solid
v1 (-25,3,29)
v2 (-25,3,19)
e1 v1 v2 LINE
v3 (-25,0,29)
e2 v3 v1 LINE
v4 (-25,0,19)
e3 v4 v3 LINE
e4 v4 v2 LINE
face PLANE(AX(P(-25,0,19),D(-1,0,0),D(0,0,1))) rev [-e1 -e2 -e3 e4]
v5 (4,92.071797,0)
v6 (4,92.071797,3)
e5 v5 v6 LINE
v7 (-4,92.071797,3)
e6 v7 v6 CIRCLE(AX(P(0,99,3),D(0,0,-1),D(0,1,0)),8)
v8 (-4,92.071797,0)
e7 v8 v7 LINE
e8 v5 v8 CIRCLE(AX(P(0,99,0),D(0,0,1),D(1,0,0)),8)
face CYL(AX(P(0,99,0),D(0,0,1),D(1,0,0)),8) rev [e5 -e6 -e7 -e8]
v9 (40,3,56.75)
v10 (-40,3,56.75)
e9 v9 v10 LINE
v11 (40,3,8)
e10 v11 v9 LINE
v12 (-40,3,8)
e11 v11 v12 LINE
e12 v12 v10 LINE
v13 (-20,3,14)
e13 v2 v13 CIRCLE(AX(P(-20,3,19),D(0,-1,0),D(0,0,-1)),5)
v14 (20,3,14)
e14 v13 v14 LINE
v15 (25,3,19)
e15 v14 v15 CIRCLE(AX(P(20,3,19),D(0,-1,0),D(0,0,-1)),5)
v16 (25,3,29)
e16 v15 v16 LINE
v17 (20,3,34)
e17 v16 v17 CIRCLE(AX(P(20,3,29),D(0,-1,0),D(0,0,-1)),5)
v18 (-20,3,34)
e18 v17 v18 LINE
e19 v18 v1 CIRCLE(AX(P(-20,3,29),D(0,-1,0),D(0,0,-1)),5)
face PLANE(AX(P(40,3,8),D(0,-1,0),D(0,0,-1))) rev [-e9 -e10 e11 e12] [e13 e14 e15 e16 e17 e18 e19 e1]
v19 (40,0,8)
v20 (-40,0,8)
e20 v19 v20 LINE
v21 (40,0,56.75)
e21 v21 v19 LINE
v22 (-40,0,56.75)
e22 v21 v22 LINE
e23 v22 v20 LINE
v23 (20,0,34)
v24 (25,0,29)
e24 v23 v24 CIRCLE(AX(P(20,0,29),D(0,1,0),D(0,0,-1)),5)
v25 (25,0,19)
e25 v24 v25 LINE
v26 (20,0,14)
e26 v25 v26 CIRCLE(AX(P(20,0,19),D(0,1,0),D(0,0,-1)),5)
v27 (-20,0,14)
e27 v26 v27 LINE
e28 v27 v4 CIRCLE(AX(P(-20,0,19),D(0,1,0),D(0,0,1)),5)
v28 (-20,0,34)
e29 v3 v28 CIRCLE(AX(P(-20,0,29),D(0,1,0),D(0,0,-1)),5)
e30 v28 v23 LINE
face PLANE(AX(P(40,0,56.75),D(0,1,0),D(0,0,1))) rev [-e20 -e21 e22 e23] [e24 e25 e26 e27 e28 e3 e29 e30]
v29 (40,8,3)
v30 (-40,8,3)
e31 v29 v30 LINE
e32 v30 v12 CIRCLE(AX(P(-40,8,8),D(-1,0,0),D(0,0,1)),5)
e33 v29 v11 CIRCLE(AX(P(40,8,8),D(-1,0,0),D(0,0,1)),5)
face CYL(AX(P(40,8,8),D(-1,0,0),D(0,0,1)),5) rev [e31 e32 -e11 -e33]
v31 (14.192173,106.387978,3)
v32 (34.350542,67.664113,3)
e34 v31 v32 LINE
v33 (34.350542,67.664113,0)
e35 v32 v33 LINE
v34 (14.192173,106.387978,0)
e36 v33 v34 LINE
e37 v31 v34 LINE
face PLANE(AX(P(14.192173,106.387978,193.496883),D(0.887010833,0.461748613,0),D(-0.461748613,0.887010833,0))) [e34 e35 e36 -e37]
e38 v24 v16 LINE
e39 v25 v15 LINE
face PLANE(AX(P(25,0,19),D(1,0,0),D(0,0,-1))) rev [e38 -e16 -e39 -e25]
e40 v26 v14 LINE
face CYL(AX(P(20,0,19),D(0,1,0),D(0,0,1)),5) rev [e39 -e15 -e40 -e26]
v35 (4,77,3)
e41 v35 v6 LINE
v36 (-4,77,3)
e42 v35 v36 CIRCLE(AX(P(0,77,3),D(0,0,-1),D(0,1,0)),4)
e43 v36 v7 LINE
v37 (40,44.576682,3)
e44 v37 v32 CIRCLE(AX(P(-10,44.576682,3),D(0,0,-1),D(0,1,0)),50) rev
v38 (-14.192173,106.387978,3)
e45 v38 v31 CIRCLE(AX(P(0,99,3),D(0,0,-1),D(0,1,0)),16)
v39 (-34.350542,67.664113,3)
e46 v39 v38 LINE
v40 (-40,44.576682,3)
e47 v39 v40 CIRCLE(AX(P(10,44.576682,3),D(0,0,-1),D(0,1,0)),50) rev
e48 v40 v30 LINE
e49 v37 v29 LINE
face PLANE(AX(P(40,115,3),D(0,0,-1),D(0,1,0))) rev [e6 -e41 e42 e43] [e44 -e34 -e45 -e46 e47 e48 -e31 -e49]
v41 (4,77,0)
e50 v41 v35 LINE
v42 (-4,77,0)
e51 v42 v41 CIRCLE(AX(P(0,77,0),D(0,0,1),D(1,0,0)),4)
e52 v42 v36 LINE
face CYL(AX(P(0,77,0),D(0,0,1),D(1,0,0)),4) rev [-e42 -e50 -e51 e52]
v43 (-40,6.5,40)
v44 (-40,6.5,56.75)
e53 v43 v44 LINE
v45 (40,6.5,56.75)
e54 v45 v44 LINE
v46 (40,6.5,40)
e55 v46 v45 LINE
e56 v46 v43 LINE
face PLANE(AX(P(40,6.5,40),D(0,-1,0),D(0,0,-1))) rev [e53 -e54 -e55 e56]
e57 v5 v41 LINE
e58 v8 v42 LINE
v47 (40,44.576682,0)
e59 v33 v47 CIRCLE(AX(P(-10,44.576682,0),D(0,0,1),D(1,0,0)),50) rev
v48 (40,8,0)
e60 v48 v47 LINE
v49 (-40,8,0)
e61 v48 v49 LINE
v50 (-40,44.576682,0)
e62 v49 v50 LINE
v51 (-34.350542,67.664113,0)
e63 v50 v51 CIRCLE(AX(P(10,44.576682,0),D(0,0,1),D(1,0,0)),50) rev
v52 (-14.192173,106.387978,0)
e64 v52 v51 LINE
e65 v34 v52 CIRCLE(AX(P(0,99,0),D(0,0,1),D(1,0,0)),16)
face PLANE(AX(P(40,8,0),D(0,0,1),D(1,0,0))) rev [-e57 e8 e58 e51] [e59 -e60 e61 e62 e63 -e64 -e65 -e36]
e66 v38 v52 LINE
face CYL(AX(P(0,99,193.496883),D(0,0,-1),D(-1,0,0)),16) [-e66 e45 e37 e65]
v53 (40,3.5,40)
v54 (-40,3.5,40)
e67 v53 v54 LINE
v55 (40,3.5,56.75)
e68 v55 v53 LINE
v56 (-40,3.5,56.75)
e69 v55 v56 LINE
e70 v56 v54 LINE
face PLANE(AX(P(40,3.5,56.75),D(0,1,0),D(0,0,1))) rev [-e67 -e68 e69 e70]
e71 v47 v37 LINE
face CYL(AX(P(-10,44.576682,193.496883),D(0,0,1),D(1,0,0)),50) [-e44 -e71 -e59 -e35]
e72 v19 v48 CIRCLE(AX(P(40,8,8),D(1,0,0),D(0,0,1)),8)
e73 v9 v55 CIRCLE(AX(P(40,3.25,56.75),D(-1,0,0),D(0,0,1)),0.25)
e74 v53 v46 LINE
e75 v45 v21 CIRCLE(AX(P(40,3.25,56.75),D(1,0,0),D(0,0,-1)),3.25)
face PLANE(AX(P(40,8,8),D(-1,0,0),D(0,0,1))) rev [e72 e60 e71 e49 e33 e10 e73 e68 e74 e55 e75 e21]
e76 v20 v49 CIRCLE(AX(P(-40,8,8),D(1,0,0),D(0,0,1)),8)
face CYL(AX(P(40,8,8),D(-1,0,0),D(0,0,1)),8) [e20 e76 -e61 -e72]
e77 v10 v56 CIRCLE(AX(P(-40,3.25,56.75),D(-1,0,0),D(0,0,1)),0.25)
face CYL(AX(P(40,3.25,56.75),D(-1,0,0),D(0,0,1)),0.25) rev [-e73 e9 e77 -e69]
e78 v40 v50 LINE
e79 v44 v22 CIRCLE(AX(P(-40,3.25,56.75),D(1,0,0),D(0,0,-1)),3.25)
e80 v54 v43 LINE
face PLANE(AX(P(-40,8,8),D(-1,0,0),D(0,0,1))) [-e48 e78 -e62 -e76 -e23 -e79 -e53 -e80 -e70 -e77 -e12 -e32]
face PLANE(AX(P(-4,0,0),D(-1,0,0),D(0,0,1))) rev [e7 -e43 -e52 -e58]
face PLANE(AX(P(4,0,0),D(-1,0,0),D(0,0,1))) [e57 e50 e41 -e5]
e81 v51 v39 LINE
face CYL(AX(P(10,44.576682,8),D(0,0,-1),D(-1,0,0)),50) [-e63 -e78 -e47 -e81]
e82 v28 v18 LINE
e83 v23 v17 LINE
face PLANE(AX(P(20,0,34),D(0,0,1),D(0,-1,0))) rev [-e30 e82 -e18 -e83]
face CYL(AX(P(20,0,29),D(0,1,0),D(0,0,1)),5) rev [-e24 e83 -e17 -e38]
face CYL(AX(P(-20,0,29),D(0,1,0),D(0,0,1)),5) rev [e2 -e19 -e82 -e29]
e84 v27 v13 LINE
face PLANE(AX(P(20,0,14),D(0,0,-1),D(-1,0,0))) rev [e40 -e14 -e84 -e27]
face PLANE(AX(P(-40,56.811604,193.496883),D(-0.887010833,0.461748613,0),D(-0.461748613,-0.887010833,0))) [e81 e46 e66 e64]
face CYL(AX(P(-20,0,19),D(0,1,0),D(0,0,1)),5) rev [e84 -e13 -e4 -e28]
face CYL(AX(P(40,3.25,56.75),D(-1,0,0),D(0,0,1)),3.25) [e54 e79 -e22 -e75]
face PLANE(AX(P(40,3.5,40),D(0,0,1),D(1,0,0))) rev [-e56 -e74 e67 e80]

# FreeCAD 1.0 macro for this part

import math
import FreeCAD as App
import Part
import Sketcher
Q = App.Units.Quantity


def edges_at(feature, points):
    """Names of the edges that pass closest to the given points."""
    edges = feature.Shape.Edges
    near = lambda p: min(range(len(edges)), key=lambda i: edges[i].distToShape(Part.Vertex(*p))[0])
    return sorted({f"Edge{near(p) + 1}" for p in points})

doc = App.newDocument("Part")
params = doc.addObject("Spreadsheet::Sheet", "Params")
for row, (alias, value) in enumerate([
    ("sketch1_radius", "5 mm"),
    ("sketch1_radius2", "8 mm"),
    ("sketch1_width", "107 mm"),
    ("sketch1_radius3", "0.25 mm"),
    ("sketch1_height", "48.75 mm"),
    ("pad1_length", "80 mm"),
    ("sketch2_radius", "16 mm"),
    ("fillet_radius", "50 mm"),
    ("sketch3_radius", "8 mm"),
    ("sketch3_radius2", "4 mm"),
    ("sketch4_radius", "5 mm"),
    ("sketch4_width", "40 mm"),
    ("sketch4_height", "10 mm"),
], start=1):
    params.set(f"A{row}", alias)
    params.set(f"B{row}", "=" + value)
    params.setAlias(f"B{row}", alias)

body = doc.addObject("PartDesign::Body", "Body")

# Sketch on YZ plane
sketch1 = doc.addObject("Sketcher::SketchObject", "Sketch")
body.addObject(sketch1)
sketch1.AttachmentSupport = (doc.YZ_Plane, [""])
sketch1.MapMode = "FlatFace"
sketch1.addGeometry(Part.LineSegment(App.Vector(8, 0, 0), App.Vector(115, 0, 0)), False)
sketch1.addGeometry(Part.LineSegment(App.Vector(115, 0, 0), App.Vector(115, 3, 0)), False)
sketch1.addGeometry(Part.LineSegment(App.Vector(115, 3, 0), App.Vector(8, 3, 0)), False)
sketch1.addGeometry(Part.ArcOfCircle(Part.Circle(App.Vector(8, 8, 0), App.Vector(0, 0, 1), 5), math.radians(180), math.radians(270)), False)
sketch1.addGeometry(Part.LineSegment(App.Vector(3, 8, 0), App.Vector(3, 56.75, 0)), False)
sketch1.addGeometry(Part.ArcOfCircle(Part.Circle(App.Vector(3.25, 56.75, 0), App.Vector(0, 0, 1), 0.25), math.radians(0), math.radians(180)), False)
sketch1.addGeometry(Part.LineSegment(App.Vector(3.5, 56.75, 0), App.Vector(3.5, 40, 0)), False)
sketch1.addGeometry(Part.LineSegment(App.Vector(3.5, 40, 0), App.Vector(6.5, 40, 0)), False)
sketch1.addGeometry(Part.LineSegment(App.Vector(6.5, 40, 0), App.Vector(6.5, 56.75, 0)), False)
sketch1.addGeometry(Part.ArcOfCircle(Part.Circle(App.Vector(3.25, 56.75, 0), App.Vector(0, 0, 1), 3.25), math.radians(0), math.radians(180)), False)
sketch1.addGeometry(Part.LineSegment(App.Vector(0, 56.75, 0), App.Vector(0, 8, 0)), False)
sketch1.addGeometry(Part.ArcOfCircle(Part.Circle(App.Vector(8, 8, 0), App.Vector(0, 0, 1), 8), math.radians(-180), math.radians(-90)), False)
sketch1.addConstraint(Sketcher.Constraint("Coincident", 0, 2, 1, 1))
sketch1.addConstraint(Sketcher.Constraint("Coincident", 1, 2, 2, 1))
sketch1.addConstraint(Sketcher.Constraint("Tangent", 2, 2, 3, 2))
sketch1.addConstraint(Sketcher.Constraint("Tangent", 3, 1, 4, 1))
sketch1.addConstraint(Sketcher.Constraint("Tangent", 4, 2, 5, 2))
sketch1.addConstraint(Sketcher.Constraint("Tangent", 5, 1, 6, 1))
sketch1.addConstraint(Sketcher.Constraint("Coincident", 6, 2, 7, 1))
sketch1.addConstraint(Sketcher.Constraint("Coincident", 7, 2, 8, 1))
sketch1.addConstraint(Sketcher.Constraint("Tangent", 8, 2, 9, 1))
sketch1.addConstraint(Sketcher.Constraint("Tangent", 9, 2, 10, 1))
sketch1.addConstraint(Sketcher.Constraint("Tangent", 10, 2, 11, 1))
sketch1.addConstraint(Sketcher.Constraint("Tangent", 11, 2, 0, 1))
sketch1.addConstraint(Sketcher.Constraint("Horizontal", 0))
sketch1.addConstraint(Sketcher.Constraint("Vertical", 1))
sketch1.addConstraint(Sketcher.Constraint("Horizontal", 2))
sketch1.addConstraint(Sketcher.Constraint("Vertical", 4))
sketch1.addConstraint(Sketcher.Constraint("Vertical", 6))
sketch1.addConstraint(Sketcher.Constraint("Horizontal", 7))
sketch1.addConstraint(Sketcher.Constraint("Vertical", 8))
sketch1.addConstraint(Sketcher.Constraint("Vertical", 10))
sketch1.addConstraint(Sketcher.Constraint("Coincident", 9, 3, 5, 3))
sketch1.addConstraint(Sketcher.Constraint("Coincident", 11, 3, 3, 3))
sketch1.addConstraint(Sketcher.Constraint("PointOnObject", 0, 2, -1))
sketch1.addConstraint(Sketcher.Constraint("PointOnObject", 9, 2, -2))
sketch1.addConstraint(Sketcher.Constraint("Radius", 3, Q("5 mm")))
sketch1.addConstraint(Sketcher.Constraint("Radius", 11, Q("8 mm")))
sketch1.addConstraint(Sketcher.Constraint("DistanceX", 0, 1, 0, 2, Q("107 mm")))
sketch1.addConstraint(Sketcher.Constraint("Radius", 5, Q("0.25 mm")))
sketch1.addConstraint(Sketcher.Constraint("DistanceY", -1, 1, 6, 2, Q("40 mm")))
sketch1.addConstraint(Sketcher.Constraint("DistanceY", 4, 1, 4, 2, Q("48.75 mm")))
sketch1.setExpression("Constraints[24]", "Params.sketch1_radius")
sketch1.setExpression("Constraints[25]", "Params.sketch1_radius2")
sketch1.setExpression("Constraints[26]", "Params.sketch1_width")
sketch1.setExpression("Constraints[27]", "Params.sketch1_radius3")
sketch1.setExpression("Constraints[29]", "Params.sketch1_height")
pad1 = doc.addObject("PartDesign::Pad", "Pad")
body.addObject(pad1)
pad1.Profile = sketch1
pad1.setExpression("Length", "Params.pad1_length")
pad1.Midplane = True

# Sketch on XY plane
sketch2 = doc.addObject("Sketcher::SketchObject", "Sketch001")
body.addObject(sketch2)
sketch2.AttachmentSupport = (doc.XY_Plane, [""])
sketch2.MapMode = "FlatFace"
sketch2.AttachmentOffset = App.Placement(App.Vector(0, 0, 3), App.Rotation())
sketch2.addGeometry(Part.LineSegment(App.Vector(-135.973207, -127.551211, 0), App.Vector(-40, 56.811604, 0)), False)
sketch2.addGeometry(Part.LineSegment(App.Vector(-40, 56.811604, 0), App.Vector(-14.192173, 106.387978, 0)), False)
sketch2.addGeometry(Part.ArcOfCircle(Part.Circle(App.Vector(0, 99, 0), App.Vector(0, 0, 1), 16), math.radians(27.5), math.radians(152.5)), False)
sketch2.addGeometry(Part.LineSegment(App.Vector(14.192173, 106.387978, 0), App.Vector(40, 56.811604, 0)), False)
sketch2.addGeometry(Part.LineSegment(App.Vector(40, 56.811604, 0), App.Vector(135.973207, -127.551211, 0)), False)
sketch2.addGeometry(Part.LineSegment(App.Vector(135.973207, -127.551211, 0), App.Vector(135.973207, 288.143407, 0)), False)
sketch2.addGeometry(Part.LineSegment(App.Vector(135.973207, 288.143407, 0), App.Vector(-135.973207, 288.143407, 0)), False)
sketch2.addGeometry(Part.LineSegment(App.Vector(-135.973207, 288.143407, 0), App.Vector(-135.973207, -127.551211, 0)), False)
sketch2.addConstraint(Sketcher.Constraint("Coincident", 0, 2, 1, 1))
sketch2.addConstraint(Sketcher.Constraint("Tangent", 1, 2, 2, 2))
sketch2.addConstraint(Sketcher.Constraint("Tangent", 2, 1, 3, 1))
sketch2.addConstraint(Sketcher.Constraint("Coincident", 3, 2, 4, 1))
sketch2.addConstraint(Sketcher.Constraint("Coincident", 4, 2, 5, 1))
sketch2.addConstraint(Sketcher.Constraint("Coincident", 5, 2, 6, 1))
sketch2.addConstraint(Sketcher.Constraint("Coincident", 6, 2, 7, 1))
sketch2.addConstraint(Sketcher.Constraint("Coincident", 7, 2, 0, 1))
sketch2.addConstraint(Sketcher.Constraint("Vertical", 5))
sketch2.addConstraint(Sketcher.Constraint("Horizontal", 6))
sketch2.addConstraint(Sketcher.Constraint("Vertical", 7))
sketch2.addConstraint(Sketcher.Constraint("Symmetric", 1, 2, 2, 1, -2))
sketch2.addConstraint(Sketcher.Constraint("Symmetric", 4, 2, 7, 2, -2))
sketch2.addConstraint(Sketcher.Constraint("Parallel", 0, 1))
sketch2.addConstraint(Sketcher.Constraint("Horizontal", 0, 2, 3, 2))
sketch2.addConstraint(Sketcher.Constraint("Radius", 2, Q("16 mm")))
sketch2.addConstraint(Sketcher.Constraint("DistanceY", -1, 1, 2, 3, Q("99 mm")))
sketch2.addConstraint(Sketcher.Constraint("DistanceX", 0, 2, -1, 1, Q("40 mm")))
sketch2.addConstraint(Sketcher.Constraint("Angle", 0, Q("62.5 deg")))
sketch2.addConstraint(Sketcher.Constraint("DistanceY", 5, 1, 5, 2, Q("415.694618 mm")))
sketch2.addConstraint(Sketcher.Constraint("Distance", 0, Q("207.847309 mm")))
sketch2.setExpression("Constraints[15]", "Params.sketch2_radius")
pocket1 = doc.addObject("PartDesign::Pocket", "Pocket")
body.addObject(pocket1)
pocket1.Profile = sketch2
pocket1.Type = "ThroughAll"
pocket1.Midplane = True
doc.recompute()

fillet = doc.addObject("PartDesign::Fillet", "Fillet")
body.addObject(fillet)
fillet.Base = (pocket1, edges_at(pocket1, [(-40, 56.812, 1.5), (40, 56.812, 1.5)]))
fillet.setExpression("Radius", "Params.fillet_radius")

# Sketch on XY plane
sketch3 = doc.addObject("Sketcher::SketchObject", "Sketch002")
body.addObject(sketch3)
sketch3.AttachmentSupport = (doc.XY_Plane, [""])
sketch3.MapMode = "FlatFace"
sketch3.AttachmentOffset = App.Placement(App.Vector(0, 0, 3), App.Rotation())
sketch3.addGeometry(Part.ArcOfCircle(Part.Circle(App.Vector(0, 99, 0), App.Vector(0, 0, 1), 8), math.radians(-60), math.radians(240)), False)
sketch3.addGeometry(Part.LineSegment(App.Vector(-4, 92.071797, 0), App.Vector(-4, 77, 0)), False)
sketch3.addGeometry(Part.ArcOfCircle(Part.Circle(App.Vector(0, 77, 0), App.Vector(0, 0, 1), 4), math.radians(180), math.radians(360)), False)
sketch3.addGeometry(Part.LineSegment(App.Vector(4, 77, 0), App.Vector(4, 92.071797, 0)), False)
sketch3.addConstraint(Sketcher.Constraint("Coincident", 0, 2, 1, 1))
sketch3.addConstraint(Sketcher.Constraint("Tangent", 1, 2, 2, 1))
sketch3.addConstraint(Sketcher.Constraint("Tangent", 2, 2, 3, 1))
sketch3.addConstraint(Sketcher.Constraint("Coincident", 3, 2, 0, 1))
sketch3.addConstraint(Sketcher.Constraint("Vertical", 1))
sketch3.addConstraint(Sketcher.Constraint("Vertical", 3))
sketch3.addConstraint(Sketcher.Constraint("Symmetric", 0, 2, 3, 2, -2))
sketch3.addConstraint(Sketcher.Constraint("Radius", 0, Q("8 mm")))
sketch3.addConstraint(Sketcher.Constraint("Radius", 2, Q("4 mm")))
sketch3.addConstraint(Sketcher.Constraint("DistanceY", -1, 1, 0, 3, Q("99 mm")))
sketch3.addConstraint(Sketcher.Constraint("DistanceY", -1, 1, 2, 3, Q("77 mm")))
sketch3.setExpression("Constraints[7]", "Params.sketch3_radius")
sketch3.setExpression("Constraints[8]", "Params.sketch3_radius2")
pocket2 = doc.addObject("PartDesign::Pocket", "Pocket001")
body.addObject(pocket2)
pocket2.Profile = sketch3
pocket2.Type = "ThroughAll"
pocket2.Midplane = True

# Sketch on XZ plane
sketch4 = doc.addObject("Sketcher::SketchObject", "Sketch003")
body.addObject(sketch4)
sketch4.AttachmentSupport = (doc.XZ_Plane, [""])
sketch4.MapMode = "FlatFace"
sketch4.AttachmentOffset = App.Placement(App.Vector(0, 0, -3), App.Rotation())
sketch4.addGeometry(Part.LineSegment(App.Vector(20, 14, 0), App.Vector(-20, 14, 0)), False)
sketch4.addGeometry(Part.ArcOfCircle(Part.Circle(App.Vector(-20, 19, 0), App.Vector(0, 0, 1), 5), math.radians(180), math.radians(270)), False)
sketch4.addGeometry(Part.LineSegment(App.Vector(-25, 19, 0), App.Vector(-25, 29, 0)), False)
sketch4.addGeometry(Part.ArcOfCircle(Part.Circle(App.Vector(-20, 29, 0), App.Vector(0, 0, 1), 5), math.radians(90), math.radians(180)), False)
sketch4.addGeometry(Part.LineSegment(App.Vector(-20, 34, 0), App.Vector(20, 34, 0)), False)
sketch4.addGeometry(Part.ArcOfCircle(Part.Circle(App.Vector(20, 29, 0), App.Vector(0, 0, 1), 5), math.radians(0), math.radians(90)), False)
sketch4.addGeometry(Part.LineSegment(App.Vector(25, 29, 0), App.Vector(25, 19, 0)), False)
sketch4.addGeometry(Part.ArcOfCircle(Part.Circle(App.Vector(20, 19, 0), App.Vector(0, 0, 1), 5), math.radians(-90), math.radians(0)), False)
sketch4.addConstraint(Sketcher.Constraint("Tangent", 0, 2, 1, 2))
sketch4.addConstraint(Sketcher.Constraint("Tangent", 1, 1, 2, 1))
sketch4.addConstraint(Sketcher.Constraint("Tangent", 2, 2, 3, 2))
sketch4.addConstraint(Sketcher.Constraint("Tangent", 3, 1, 4, 1))
sketch4.addConstraint(Sketcher.Constraint("Tangent", 4, 2, 5, 2))
sketch4.addConstraint(Sketcher.Constraint("Tangent", 5, 1, 6, 1))
sketch4.addConstraint(Sketcher.Constraint("Tangent", 6, 2, 7, 2))
sketch4.addConstraint(Sketcher.Constraint("Tangent", 7, 1, 0, 1))
sketch4.addConstraint(Sketcher.Constraint("Horizontal", 0))
sketch4.addConstraint(Sketcher.Constraint("Vertical", 2))
sketch4.addConstraint(Sketcher.Constraint("Horizontal", 4))
sketch4.addConstraint(Sketcher.Constraint("Vertical", 6))
sketch4.addConstraint(Sketcher.Constraint("Equal", 1, 3))
sketch4.addConstraint(Sketcher.Constraint("Equal", 3, 5))
sketch4.addConstraint(Sketcher.Constraint("Equal", 5, 7))
sketch4.addConstraint(Sketcher.Constraint("Radius", 1, Q("5 mm")))
sketch4.addConstraint(Sketcher.Constraint("DistanceX", 0, 2, 0, 1, Q("40 mm")))
sketch4.addConstraint(Sketcher.Constraint("DistanceY", 2, 1, 2, 2, Q("10 mm")))
sketch4.addConstraint(Sketcher.Constraint("DistanceX", 1, 3, -1, 1, Q("20 mm")))
sketch4.addConstraint(Sketcher.Constraint("DistanceY", -1, 1, 1, 3, Q("19 mm")))
sketch4.setExpression("Constraints[15]", "Params.sketch4_radius")
sketch4.setExpression("Constraints[16]", "Params.sketch4_width")
sketch4.setExpression("Constraints[17]", "Params.sketch4_height")
pocket3 = doc.addObject("PartDesign::Pocket", "Pocket002")
body.addObject(pocket3)
pocket3.Profile = sketch4
pocket3.Type = "ThroughAll"
pocket3.Midplane = True

doc.recompute()
